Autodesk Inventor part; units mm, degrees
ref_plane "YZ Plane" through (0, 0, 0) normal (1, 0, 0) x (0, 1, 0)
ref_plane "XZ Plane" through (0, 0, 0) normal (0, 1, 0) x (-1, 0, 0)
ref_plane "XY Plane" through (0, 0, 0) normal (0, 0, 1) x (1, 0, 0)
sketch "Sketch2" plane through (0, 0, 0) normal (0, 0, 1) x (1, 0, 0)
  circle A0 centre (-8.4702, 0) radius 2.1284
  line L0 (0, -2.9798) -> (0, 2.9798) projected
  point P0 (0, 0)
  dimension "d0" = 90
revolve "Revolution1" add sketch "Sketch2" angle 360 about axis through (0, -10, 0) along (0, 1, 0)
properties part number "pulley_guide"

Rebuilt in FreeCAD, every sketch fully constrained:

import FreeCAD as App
import Part
import Sketcher

doc = App.newDocument("Part")
body = doc.addObject("PartDesign::Body", "Body")

# Sketch on XY plane
sketch1 = doc.addObject("Sketcher::SketchObject", "Sketch")
body.addObject(sketch1)
sketch1.AttachmentSupport = (doc.XY_Plane, [""])
sketch1.MapMode = "FlatFace"
sketch1.addGeometry(Part.Circle(App.Vector(-8.5, 0, 0), App.Vector(0, 0, 1), 2.1), False)
sketch1.addConstraint([
    Sketcher.Constraint("PointOnObject", 0, 3, -1),
    Sketcher.Constraint("Diameter", 0, 4.2568),
    Sketcher.Constraint("DistanceX", 0, 3, -1, 1, 8.4702),
])
revolution = doc.addObject("PartDesign::Revolution", "Revolution")
body.addObject(revolution)
revolution.Profile = sketch1
revolution.ReferenceAxis = (sketch1, ["V_Axis"])
revolution.Angle = 360

doc.recompute()
